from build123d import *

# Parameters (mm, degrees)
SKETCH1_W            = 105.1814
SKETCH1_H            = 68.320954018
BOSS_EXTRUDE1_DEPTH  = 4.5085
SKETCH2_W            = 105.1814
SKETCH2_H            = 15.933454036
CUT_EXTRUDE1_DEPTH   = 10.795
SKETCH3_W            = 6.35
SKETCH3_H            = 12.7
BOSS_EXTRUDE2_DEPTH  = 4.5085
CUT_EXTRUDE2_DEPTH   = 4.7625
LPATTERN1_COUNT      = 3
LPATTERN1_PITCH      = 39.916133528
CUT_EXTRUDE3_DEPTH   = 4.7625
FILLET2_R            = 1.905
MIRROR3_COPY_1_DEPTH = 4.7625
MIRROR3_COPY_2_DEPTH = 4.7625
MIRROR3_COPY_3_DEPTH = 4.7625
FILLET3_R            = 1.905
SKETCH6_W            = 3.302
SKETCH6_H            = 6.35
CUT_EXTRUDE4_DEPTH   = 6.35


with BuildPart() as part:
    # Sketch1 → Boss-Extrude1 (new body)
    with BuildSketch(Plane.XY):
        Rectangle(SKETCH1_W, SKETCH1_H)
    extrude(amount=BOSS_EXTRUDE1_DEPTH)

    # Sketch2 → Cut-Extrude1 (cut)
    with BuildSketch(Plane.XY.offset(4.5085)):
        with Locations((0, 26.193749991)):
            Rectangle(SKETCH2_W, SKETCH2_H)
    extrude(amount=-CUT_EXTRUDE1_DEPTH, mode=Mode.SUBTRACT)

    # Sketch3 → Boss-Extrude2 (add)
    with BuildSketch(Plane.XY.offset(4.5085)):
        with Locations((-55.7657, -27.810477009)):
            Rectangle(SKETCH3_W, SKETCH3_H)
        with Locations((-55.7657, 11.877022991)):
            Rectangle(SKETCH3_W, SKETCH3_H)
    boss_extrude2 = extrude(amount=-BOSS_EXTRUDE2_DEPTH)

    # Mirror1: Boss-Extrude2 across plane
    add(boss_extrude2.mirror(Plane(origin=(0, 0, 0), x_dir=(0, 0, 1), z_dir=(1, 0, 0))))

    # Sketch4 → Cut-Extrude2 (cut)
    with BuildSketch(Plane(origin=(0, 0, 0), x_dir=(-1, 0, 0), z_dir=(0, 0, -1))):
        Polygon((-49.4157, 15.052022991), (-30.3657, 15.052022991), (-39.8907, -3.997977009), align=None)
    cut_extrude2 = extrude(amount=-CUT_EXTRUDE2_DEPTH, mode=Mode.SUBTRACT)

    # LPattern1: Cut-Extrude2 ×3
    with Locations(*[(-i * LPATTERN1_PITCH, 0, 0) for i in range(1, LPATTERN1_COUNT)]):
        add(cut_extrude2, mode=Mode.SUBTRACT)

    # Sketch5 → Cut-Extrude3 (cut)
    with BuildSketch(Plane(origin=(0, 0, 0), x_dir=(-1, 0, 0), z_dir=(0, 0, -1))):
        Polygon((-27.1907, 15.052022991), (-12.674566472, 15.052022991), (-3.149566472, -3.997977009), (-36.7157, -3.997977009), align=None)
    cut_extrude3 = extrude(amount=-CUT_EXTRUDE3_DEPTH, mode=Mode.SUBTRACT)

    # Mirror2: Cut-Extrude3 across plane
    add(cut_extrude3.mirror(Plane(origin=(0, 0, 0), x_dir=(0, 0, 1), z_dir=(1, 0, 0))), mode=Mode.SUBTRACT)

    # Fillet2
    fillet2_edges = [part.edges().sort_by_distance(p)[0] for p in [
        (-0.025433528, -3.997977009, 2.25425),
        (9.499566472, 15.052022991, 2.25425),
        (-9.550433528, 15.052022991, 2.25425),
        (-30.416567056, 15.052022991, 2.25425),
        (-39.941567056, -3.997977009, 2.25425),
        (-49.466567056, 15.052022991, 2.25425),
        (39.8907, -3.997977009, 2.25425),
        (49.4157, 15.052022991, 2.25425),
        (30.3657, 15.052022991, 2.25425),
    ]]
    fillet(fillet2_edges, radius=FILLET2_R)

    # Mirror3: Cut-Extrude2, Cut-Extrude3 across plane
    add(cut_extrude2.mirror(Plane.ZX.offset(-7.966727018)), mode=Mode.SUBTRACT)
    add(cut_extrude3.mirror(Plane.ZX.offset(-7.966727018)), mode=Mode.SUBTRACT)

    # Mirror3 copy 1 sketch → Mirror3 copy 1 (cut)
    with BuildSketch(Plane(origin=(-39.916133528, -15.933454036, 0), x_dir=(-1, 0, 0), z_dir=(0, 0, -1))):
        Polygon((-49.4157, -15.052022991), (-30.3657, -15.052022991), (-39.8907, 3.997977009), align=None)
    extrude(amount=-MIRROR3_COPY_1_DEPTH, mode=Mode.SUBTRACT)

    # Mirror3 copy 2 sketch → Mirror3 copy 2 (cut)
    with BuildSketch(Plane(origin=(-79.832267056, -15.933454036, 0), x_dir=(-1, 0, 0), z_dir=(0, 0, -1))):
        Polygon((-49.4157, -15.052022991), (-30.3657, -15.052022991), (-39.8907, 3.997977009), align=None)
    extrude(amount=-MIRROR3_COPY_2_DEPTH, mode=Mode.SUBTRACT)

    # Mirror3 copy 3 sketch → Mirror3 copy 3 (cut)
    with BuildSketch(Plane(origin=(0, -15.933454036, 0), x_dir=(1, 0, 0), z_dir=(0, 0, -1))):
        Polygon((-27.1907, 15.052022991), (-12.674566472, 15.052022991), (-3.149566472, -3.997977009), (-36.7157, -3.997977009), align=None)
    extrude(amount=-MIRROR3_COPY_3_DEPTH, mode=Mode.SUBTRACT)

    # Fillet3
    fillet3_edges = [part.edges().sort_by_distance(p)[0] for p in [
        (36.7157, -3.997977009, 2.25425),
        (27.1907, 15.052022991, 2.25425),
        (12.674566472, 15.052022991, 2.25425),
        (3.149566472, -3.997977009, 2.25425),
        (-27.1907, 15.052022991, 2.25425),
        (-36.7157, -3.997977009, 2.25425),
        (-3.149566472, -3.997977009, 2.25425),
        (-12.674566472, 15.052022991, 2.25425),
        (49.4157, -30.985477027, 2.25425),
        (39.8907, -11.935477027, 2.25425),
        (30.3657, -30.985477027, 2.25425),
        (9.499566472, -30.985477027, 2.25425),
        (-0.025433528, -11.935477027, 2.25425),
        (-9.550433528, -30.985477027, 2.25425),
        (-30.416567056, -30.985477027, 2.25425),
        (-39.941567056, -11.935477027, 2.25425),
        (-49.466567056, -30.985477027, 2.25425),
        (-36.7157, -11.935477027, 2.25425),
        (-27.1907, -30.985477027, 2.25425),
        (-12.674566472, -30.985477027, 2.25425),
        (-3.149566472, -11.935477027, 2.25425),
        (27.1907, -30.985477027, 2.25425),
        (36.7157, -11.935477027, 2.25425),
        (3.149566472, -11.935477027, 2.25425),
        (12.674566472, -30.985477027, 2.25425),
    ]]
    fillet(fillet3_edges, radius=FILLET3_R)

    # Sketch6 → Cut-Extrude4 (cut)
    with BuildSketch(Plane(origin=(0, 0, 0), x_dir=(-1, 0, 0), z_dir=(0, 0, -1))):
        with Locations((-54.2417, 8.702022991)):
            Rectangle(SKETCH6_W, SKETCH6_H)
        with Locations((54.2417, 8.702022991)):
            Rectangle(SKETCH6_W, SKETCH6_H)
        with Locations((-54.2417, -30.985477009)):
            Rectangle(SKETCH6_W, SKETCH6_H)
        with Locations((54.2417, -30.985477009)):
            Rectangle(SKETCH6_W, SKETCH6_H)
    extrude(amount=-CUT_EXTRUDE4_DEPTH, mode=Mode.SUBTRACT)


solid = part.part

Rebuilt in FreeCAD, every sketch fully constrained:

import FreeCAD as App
import Part
import Sketcher
Q = App.Units.Quantity


def edges_at(feature, points):
    """Names of the edges that pass closest to the given points."""
    edges = feature.Shape.Edges
    near = lambda p: min(range(len(edges)), key=lambda i: edges[i].distToShape(Part.Vertex(*p))[0])
    return sorted({f"Edge{near(p) + 1}" for p in points})


def add_polygon(sketch, points):
    """Adds a closed chain of lines whose ends are joined by coincident constraints."""
    first, n = sketch.GeometryCount, len(points)
    for a, b in zip(points, points[1:] + points[:1]):
        sketch.addGeometry(Part.LineSegment(App.Vector(*a, 0), App.Vector(*b, 0)), False)
    for i in range(n):
        sketch.addConstraint(Sketcher.Constraint("Coincident", first + i, 2, first + (i + 1) % n, 1))

doc = App.newDocument("Part")
params = doc.addObject("Spreadsheet::Sheet", "Params")
for row, (alias, value) in enumerate([
    ("sketch1_width", "4.141 in"),
    ("pad1_length", "0.1775 in"),
    ("sketch2_width", "4.141 in"),
    ("pocket1_length", "0.425 in"),
    ("sketch3_height", "0.5 in"),
    ("sketch3_width", "0.25 in"),
    ("pad2_length", "0.1775 in"),
    ("sketch4_width", "0.75 in"),
    ("pocket2_length", "0.1875 in"),
    ("linearpattern_pitch", "39.916134 mm"),
    ("pocket3_length", "0.1875 in"),
    ("fillet_radius", "0.075 in"),
    ("sketch6_width", "0.75 in"),
    ("pocket4_length", "0.1875 in"),
    ("sketch7_width", "0.75 in"),
    ("pocket5_length", "0.1875 in"),
    ("pocket6_length", "0.1875 in"),
    ("fillet2_radius", "0.075 in"),
    ("sketch9_width", "0.13 in"),
    ("sketch9_height", "0.25 in"),
    ("pocket7_length", "0.25 in"),
], start=1):
    params.set(f"A{row}", alias)
    params.set(f"B{row}", "=" + value)
    params.setAlias(f"B{row}", alias)

body = doc.addObject("PartDesign::Body", "Body")

# Sketch on XY plane
sketch1 = doc.addObject("Sketcher::SketchObject", "Sketch")
body.addObject(sketch1)
sketch1.AttachmentSupport = (doc.XY_Plane, [""])
sketch1.MapMode = "FlatFace"
add_polygon(sketch1, [(-52.5907, 34.160477), (-52.5907, -34.160477), (52.5907, -34.160477), (52.5907, 34.160477)])  # lines 0-3
sketch1.addConstraint(Sketcher.Constraint("Vertical", 0))
sketch1.addConstraint(Sketcher.Constraint("Horizontal", 1))
sketch1.addConstraint(Sketcher.Constraint("Vertical", 2))
sketch1.addConstraint(Sketcher.Constraint("Horizontal", 3))
sketch1.addConstraint(Sketcher.Constraint("Symmetric", 0, 2, 2, 2, -1, 1))
sketch1.addConstraint(Sketcher.Constraint("DistanceX", 1, 1, 1, 2, Q("4.141 in")))
sketch1.addConstraint(Sketcher.Constraint("DistanceY", 0, 2, 0, 1, 68.320954))
sketch1.setExpression("Constraints[9]", "Params.sketch1_width")
pad1 = doc.addObject("PartDesign::Pad", "Pad")
body.addObject(pad1)
pad1.Profile = sketch1
pad1.setExpression("Length", "Params.pad1_length")

# Sketch on XY plane
sketch2 = doc.addObject("Sketcher::SketchObject", "Sketch001")
body.addObject(sketch2)
sketch2.AttachmentSupport = (doc.XY_Plane, [""])
sketch2.MapMode = "FlatFace"
sketch2.AttachmentOffset = App.Placement(App.Vector(0, 0, 0.1775 * 25.4), App.Rotation())
add_polygon(sketch2, [(-52.5907, 34.160477), (-52.5907, 18.227023), (52.5907, 18.227023), (52.5907, 34.160477)])  # lines 0-3
sketch2.addConstraint(Sketcher.Constraint("Vertical", 0))
sketch2.addConstraint(Sketcher.Constraint("Horizontal", 1))
sketch2.addConstraint(Sketcher.Constraint("Vertical", 2))
sketch2.addConstraint(Sketcher.Constraint("Horizontal", 3))
sketch2.addConstraint(Sketcher.Constraint("DistanceX", 1, 1, 1, 2, Q("4.141 in")))
sketch2.addConstraint(Sketcher.Constraint("DistanceX", 0, 2, -1, 1, Q("2.0705 in")))
sketch2.addConstraint(Sketcher.Constraint("DistanceY", 0, 2, 0, 1, 15.933454))
sketch2.addConstraint(Sketcher.Constraint("DistanceY", -1, 1, 0, 2, 18.227023))
sketch2.setExpression("Constraints[8]", "Params.sketch2_width")
pocket1 = doc.addObject("PartDesign::Pocket", "Pocket")
body.addObject(pocket1)
pocket1.Profile = sketch2
pocket1.setExpression("Length", "Params.pocket1_length")

# Sketch on XY plane
sketch3 = doc.addObject("Sketcher::SketchObject", "Sketch002")
body.addObject(sketch3)
sketch3.AttachmentSupport = (doc.XY_Plane, [""])
sketch3.MapMode = "FlatFace"
sketch3.AttachmentOffset = App.Placement(App.Vector(0, 0, 0.1775 * 25.4), App.Rotation())
add_polygon(sketch3, [(-58.9407, -21.460477), (-58.9407, -34.160477), (-52.5907, -34.160477), (-52.5907, -21.460477)])  # lines 0-3
add_polygon(sketch3, [(-58.9407, 18.227023), (-58.9407, 5.527023), (-52.5907, 5.527023), (-52.5907, 18.227023)])  # lines 4-7
sketch3.addConstraint(Sketcher.Constraint("Vertical", 0))
sketch3.addConstraint(Sketcher.Constraint("Horizontal", 1))
sketch3.addConstraint(Sketcher.Constraint("Vertical", 2))
sketch3.addConstraint(Sketcher.Constraint("Horizontal", 3))
sketch3.addConstraint(Sketcher.Constraint("Vertical", 4))
sketch3.addConstraint(Sketcher.Constraint("Horizontal", 5))
sketch3.addConstraint(Sketcher.Constraint("Vertical", 6))
sketch3.addConstraint(Sketcher.Constraint("Horizontal", 7))
sketch3.addConstraint(Sketcher.Constraint("Vertical", 3, 2, 4, 2))
sketch3.addConstraint(Sketcher.Constraint("Vertical", 2, 2, 5, 2))
sketch3.addConstraint(Sketcher.Constraint("Equal", 2, 4))
sketch3.addConstraint(Sketcher.Constraint("DistanceY", 0, 2, 0, 1, Q("0.5 in")))
sketch3.addConstraint(Sketcher.Constraint("DistanceX", 1, 1, 1, 2, Q("0.25 in")))
sketch3.addConstraint(Sketcher.Constraint("DistanceY", 3, 2, 4, 2, Q("1.0625 in")))
sketch3.addConstraint(Sketcher.Constraint("DistanceX", 0, 2, -1, 1, Q("2.3205 in")))
sketch3.addConstraint(Sketcher.Constraint("DistanceY", 0, 2, -1, 1, 34.160477))
sketch3.setExpression("Constraints[19]", "Params.sketch3_height")
sketch3.setExpression("Constraints[20]", "Params.sketch3_width")
pad2 = doc.addObject("PartDesign::Pad", "Pad001")
body.addObject(pad2)
pad2.Profile = sketch3
pad2.setExpression("Length", "Params.pad2_length")
pad2.Reversed = True
doc.recompute()

mirrored = doc.addObject("PartDesign::Mirrored", "Mirrored")
body.addObject(mirrored)
mirrored.Originals = [pad2]
mirrored.MirrorPlane = (doc.YZ_Plane, [""])
body.Tip = mirrored

# Sketch on XY plane
sketch4 = doc.addObject("Sketcher::SketchObject", "Sketch003")
body.addObject(sketch4)
sketch4.AttachmentSupport = (doc.XY_Plane, [""])
sketch4.MapMode = "FlatFace"
add_polygon(sketch4, [(30.3657, 15.052023), (49.4157, 15.052023), (39.8907, -3.997977)])  # lines 0-2
sketch4.addConstraint(Sketcher.Constraint("Horizontal", 0))
sketch4.addConstraint(Sketcher.Constraint("Equal", 1, 2))
sketch4.addConstraint(Sketcher.Constraint("DistanceX", 0, 1, 0, 2, Q("0.75 in")))
sketch4.addConstraint(Sketcher.Constraint("DistanceY", 1, 2, 0, 2, Q("0.75 in")))
sketch4.addConstraint(Sketcher.Constraint("DistanceX", -1, 1, 0, 2, Q("1.9455 in")))
sketch4.addConstraint(Sketcher.Constraint("DistanceY", -1, 1, 0, 2, 15.052023))
sketch4.setExpression("Constraints[5]", "Params.sketch4_width")
pocket2 = doc.addObject("PartDesign::Pocket", "Pocket001")
body.addObject(pocket2)
pocket2.Profile = sketch4
pocket2.setExpression("Length", "Params.pocket2_length")
pocket2.Reversed = True
doc.recompute()

linearpattern = doc.addObject("PartDesign::LinearPattern", "LinearPattern")
body.addObject(linearpattern)
linearpattern.Originals = [pocket2]
linearpattern.Direction = (doc.X_Axis, [""])
linearpattern.Mode = "offset"
linearpattern.setExpression("Offset", "Params.linearpattern_pitch")
linearpattern.Occurrences = 3
linearpattern.Reversed = True
body.Tip = linearpattern

# Sketch on XY plane
sketch5 = doc.addObject("Sketcher::SketchObject", "Sketch004")
body.addObject(sketch5)
sketch5.AttachmentSupport = (doc.XY_Plane, [""])
sketch5.MapMode = "FlatFace"
add_polygon(sketch5, [(12.674566, 15.052023), (27.1907, 15.052023), (36.7157, -3.997977), (3.149566, -3.997977)])  # lines 0-3
sketch5.addConstraint(Sketcher.Constraint("Horizontal", 0))
sketch5.addConstraint(Sketcher.Constraint("Horizontal", 2))
sketch5.addConstraint(Sketcher.Constraint("Equal", 1, 3))
sketch5.addConstraint(Sketcher.Constraint("DistanceY", 1, 2, 0, 2, Q("0.75 in")))
sketch5.addConstraint(Sketcher.Constraint("DistanceX", 0, 2, 1, 2, Q("0.375 in")))
sketch5.addConstraint(Sketcher.Constraint("DistanceX", -1, 1, 0, 2, Q("1.0705 in")))
sketch5.addConstraint(Sketcher.Constraint("DistanceX", 0, 1, 0, 2, 14.516134))
sketch5.addConstraint(Sketcher.Constraint("DistanceY", -1, 1, 0, 2, 15.052023))
pocket3 = doc.addObject("PartDesign::Pocket", "Pocket002")
body.addObject(pocket3)
pocket3.Profile = sketch5
pocket3.setExpression("Length", "Params.pocket3_length")
pocket3.Reversed = True
doc.recompute()

mirrored2 = doc.addObject("PartDesign::Mirrored", "Mirrored001")
body.addObject(mirrored2)
mirrored2.Originals = [pocket3]
mirrored2.MirrorPlane = (doc.YZ_Plane, [""])
body.Tip = mirrored2
doc.recompute()

fillet = doc.addObject("PartDesign::Fillet", "Fillet")
body.addObject(fillet)
fillet.Base = (mirrored2, edges_at(mirrored2, [
    (-0.025, -3.998, 2.254),
    (9.5, 15.052, 2.254),
    (-9.55, 15.052, 2.254),
    (-30.417, 15.052, 2.254),
    (-39.942, -3.998, 2.254),
    (-49.467, 15.052, 2.254),
    (39.891, -3.998, 2.254),
    (49.416, 15.052, 2.254),
    (30.366, 15.052, 2.254),
]))
fillet.setExpression("Radius", "Params.fillet_radius")
doc.recompute()

datumplane = doc.addObject("PartDesign::Plane", "DatumPlane")
body.addObject(datumplane)
datumplane.AttachmentSupport = (doc.XZ_Plane, [""])
datumplane.MapMode = "FlatFace"
datumplane.AttachmentOffset = App.Placement(App.Vector(0, 0, 7.966727), App.Rotation())
mirrored3 = doc.addObject("PartDesign::Mirrored", "Mirrored002")
body.addObject(mirrored3)
mirrored3.Originals = [pocket2, pocket3]
mirrored3.MirrorPlane = (datumplane, [""])
body.Tip = mirrored3

# Sketch on XY plane
sketch6 = doc.addObject("Sketcher::SketchObject", "Sketch005")
body.addObject(sketch6)
sketch6.AttachmentSupport = (doc.XY_Plane, [""])
sketch6.MapMode = "FlatFace"
add_polygon(sketch6, [(9.499566, -30.985477), (-9.550434, -30.985477), (-0.025434, -11.935477)])  # lines 0-2
sketch6.addConstraint(Sketcher.Constraint("Horizontal", 0))
sketch6.addConstraint(Sketcher.Constraint("Equal", 1, 2))
sketch6.addConstraint(Sketcher.Constraint("DistanceX", 0, 2, 0, 1, Q("0.75 in")))
sketch6.addConstraint(Sketcher.Constraint("DistanceY", 0, 2, 1, 2, Q("0.75 in")))
sketch6.addConstraint(Sketcher.Constraint("DistanceX", 0, 2, -1, 1, 9.550434))
sketch6.addConstraint(Sketcher.Constraint("DistanceY", 0, 2, -1, 1, 30.985477))
sketch6.setExpression("Constraints[5]", "Params.sketch6_width")
pocket4 = doc.addObject("PartDesign::Pocket", "Pocket003")
body.addObject(pocket4)
pocket4.Profile = sketch6
pocket4.setExpression("Length", "Params.pocket4_length")
pocket4.Reversed = True

# Sketch on XY plane
sketch7 = doc.addObject("Sketcher::SketchObject", "Sketch006")
body.addObject(sketch7)
sketch7.AttachmentSupport = (doc.XY_Plane, [""])
sketch7.MapMode = "FlatFace"
add_polygon(sketch7, [(-30.416567, -30.985477), (-49.466567, -30.985477), (-39.941567, -11.935477)])  # lines 0-2
sketch7.addConstraint(Sketcher.Constraint("Horizontal", 0))
sketch7.addConstraint(Sketcher.Constraint("Equal", 1, 2))
sketch7.addConstraint(Sketcher.Constraint("DistanceX", 0, 2, 0, 1, Q("0.75 in")))
sketch7.addConstraint(Sketcher.Constraint("DistanceY", 0, 2, 1, 2, Q("0.75 in")))
sketch7.addConstraint(Sketcher.Constraint("DistanceX", 0, 2, -1, 1, 49.466567))
sketch7.addConstraint(Sketcher.Constraint("DistanceY", 0, 2, -1, 1, 30.985477))
sketch7.setExpression("Constraints[5]", "Params.sketch7_width")
pocket5 = doc.addObject("PartDesign::Pocket", "Pocket004")
body.addObject(pocket5)
pocket5.Profile = sketch7
pocket5.setExpression("Length", "Params.pocket5_length")
pocket5.Reversed = True

# Sketch on XY plane
sketch8 = doc.addObject("Sketcher::SketchObject", "Sketch007")
body.addObject(sketch8)
sketch8.AttachmentSupport = (doc.XY_Plane, [""])
sketch8.MapMode = "FlatFace"
add_polygon(sketch8, [(-12.674566, -30.985477), (-27.1907, -30.985477), (-36.7157, -11.935477), (-3.149566, -11.935477)])  # lines 0-3
sketch8.addConstraint(Sketcher.Constraint("Horizontal", 0))
sketch8.addConstraint(Sketcher.Constraint("Horizontal", 2))
sketch8.addConstraint(Sketcher.Constraint("Equal", 1, 3))
sketch8.addConstraint(Sketcher.Constraint("DistanceY", 0, 2, 1, 2, Q("0.75 in")))
sketch8.addConstraint(Sketcher.Constraint("DistanceX", 1, 2, 0, 2, Q("0.375 in")))
sketch8.addConstraint(Sketcher.Constraint("DistanceX", 0, 2, -1, 1, Q("1.0705 in")))
sketch8.addConstraint(Sketcher.Constraint("DistanceX", 0, 2, 0, 1, 14.516134))
sketch8.addConstraint(Sketcher.Constraint("DistanceY", 0, 2, -1, 1, 30.985477))
pocket6 = doc.addObject("PartDesign::Pocket", "Pocket005")
body.addObject(pocket6)
pocket6.Profile = sketch8
pocket6.setExpression("Length", "Params.pocket6_length")
pocket6.Reversed = True
doc.recompute()

fillet2 = doc.addObject("PartDesign::Fillet", "Fillet001")
body.addObject(fillet2)
fillet2.Base = (pocket6, edges_at(pocket6, [
    (36.716, -3.998, 2.254),
    (27.191, 15.052, 2.254),
    (12.675, 15.052, 2.254),
    (3.15, -3.998, 2.254),
    (-27.191, 15.052, 2.254),
    (-36.716, -3.998, 2.254),
    (-3.15, -3.998, 2.254),
    (-12.675, 15.052, 2.254),
    (49.416, -30.985, 2.254),
    (39.891, -11.935, 2.254),
    (30.366, -30.985, 2.254),
    (9.5, -30.985, 2.254),
    (-0.025, -11.935, 2.254),
    (-9.55, -30.985, 2.254),
    (-30.417, -30.985, 2.254),
    (-39.942, -11.935, 2.254),
    (-49.467, -30.985, 2.254),
    (-36.716, -11.935, 2.254),
    (-27.191, -30.985, 2.254),
    (-12.675, -30.985, 2.254),
    (-3.15, -11.935, 2.254),
    (27.191, -30.985, 2.254),
    (36.716, -11.935, 2.254),
    (3.15, -11.935, 2.254),
    (12.675, -30.985, 2.254),
]))
fillet2.setExpression("Radius", "Params.fillet2_radius")

# Sketch on XY plane
sketch9 = doc.addObject("Sketcher::SketchObject", "Sketch008")
body.addObject(sketch9)
sketch9.AttachmentSupport = (doc.XY_Plane, [""])
sketch9.MapMode = "FlatFace"
add_polygon(sketch9, [(55.8927, 11.877023), (55.8927, 5.527023), (52.5907, 5.527023), (52.5907, 11.877023)])  # lines 0-3
add_polygon(sketch9, [(-52.5907, 11.877023), (-52.5907, 5.527023), (-55.8927, 5.527023), (-55.8927, 11.877023)])  # lines 4-7
add_polygon(sketch9, [(55.8927, -27.810477), (55.8927, -34.160477), (52.5907, -34.160477), (52.5907, -27.810477)])  # lines 8-11
add_polygon(sketch9, [(-52.5907, -27.810477), (-52.5907, -34.160477), (-55.8927, -34.160477), (-55.8927, -27.810477)])  # lines 12-15
sketch9.addConstraint(Sketcher.Constraint("Vertical", 0))
sketch9.addConstraint(Sketcher.Constraint("Horizontal", 1))
sketch9.addConstraint(Sketcher.Constraint("Vertical", 2))
sketch9.addConstraint(Sketcher.Constraint("Horizontal", 3))
sketch9.addConstraint(Sketcher.Constraint("Vertical", 4))
sketch9.addConstraint(Sketcher.Constraint("Horizontal", 5))
sketch9.addConstraint(Sketcher.Constraint("Vertical", 6))
sketch9.addConstraint(Sketcher.Constraint("Horizontal", 7))
sketch9.addConstraint(Sketcher.Constraint("Vertical", 8))
sketch9.addConstraint(Sketcher.Constraint("Horizontal", 9))
sketch9.addConstraint(Sketcher.Constraint("Vertical", 10))
sketch9.addConstraint(Sketcher.Constraint("Horizontal", 11))
sketch9.addConstraint(Sketcher.Constraint("Vertical", 12))
sketch9.addConstraint(Sketcher.Constraint("Horizontal", 13))
sketch9.addConstraint(Sketcher.Constraint("Vertical", 14))
sketch9.addConstraint(Sketcher.Constraint("Horizontal", 15))
sketch9.addConstraint(Sketcher.Constraint("Symmetric", 1, 2, 4, 2, -2))
sketch9.addConstraint(Sketcher.Constraint("Symmetric", 3, 2, 6, 2, -2))
sketch9.addConstraint(Sketcher.Constraint("Symmetric", 9, 2, 12, 2, -2))
sketch9.addConstraint(Sketcher.Constraint("Symmetric", 11, 2, 14, 2, -2))
sketch9.addConstraint(Sketcher.Constraint("Vertical", 3, 2, 8, 2))
sketch9.addConstraint(Sketcher.Constraint("Vertical", 2, 2, 9, 2))
sketch9.addConstraint(Sketcher.Constraint("Equal", 6, 8))
sketch9.addConstraint(Sketcher.Constraint("DistanceX", 1, 2, 1, 1, Q("0.13 in")))
sketch9.addConstraint(Sketcher.Constraint("DistanceY", 0, 2, 0, 1, Q("0.25 in")))
sketch9.addConstraint(Sketcher.Constraint("DistanceX", 4, 2, 1, 2, Q("4.141 in")))
sketch9.addConstraint(Sketcher.Constraint("DistanceY", 8, 2, 0, 2, Q("1.5625 in")))
sketch9.addConstraint(Sketcher.Constraint("DistanceY", -1, 1, 0, 2, 5.527023))
sketch9.setExpression("Constraints[39]", "Params.sketch9_width")
sketch9.setExpression("Constraints[40]", "Params.sketch9_height")
pocket7 = doc.addObject("PartDesign::Pocket", "Pocket006")
body.addObject(pocket7)
pocket7.Profile = sketch9
pocket7.setExpression("Length", "Params.pocket7_length")
pocket7.Reversed = True

doc.recompute()
